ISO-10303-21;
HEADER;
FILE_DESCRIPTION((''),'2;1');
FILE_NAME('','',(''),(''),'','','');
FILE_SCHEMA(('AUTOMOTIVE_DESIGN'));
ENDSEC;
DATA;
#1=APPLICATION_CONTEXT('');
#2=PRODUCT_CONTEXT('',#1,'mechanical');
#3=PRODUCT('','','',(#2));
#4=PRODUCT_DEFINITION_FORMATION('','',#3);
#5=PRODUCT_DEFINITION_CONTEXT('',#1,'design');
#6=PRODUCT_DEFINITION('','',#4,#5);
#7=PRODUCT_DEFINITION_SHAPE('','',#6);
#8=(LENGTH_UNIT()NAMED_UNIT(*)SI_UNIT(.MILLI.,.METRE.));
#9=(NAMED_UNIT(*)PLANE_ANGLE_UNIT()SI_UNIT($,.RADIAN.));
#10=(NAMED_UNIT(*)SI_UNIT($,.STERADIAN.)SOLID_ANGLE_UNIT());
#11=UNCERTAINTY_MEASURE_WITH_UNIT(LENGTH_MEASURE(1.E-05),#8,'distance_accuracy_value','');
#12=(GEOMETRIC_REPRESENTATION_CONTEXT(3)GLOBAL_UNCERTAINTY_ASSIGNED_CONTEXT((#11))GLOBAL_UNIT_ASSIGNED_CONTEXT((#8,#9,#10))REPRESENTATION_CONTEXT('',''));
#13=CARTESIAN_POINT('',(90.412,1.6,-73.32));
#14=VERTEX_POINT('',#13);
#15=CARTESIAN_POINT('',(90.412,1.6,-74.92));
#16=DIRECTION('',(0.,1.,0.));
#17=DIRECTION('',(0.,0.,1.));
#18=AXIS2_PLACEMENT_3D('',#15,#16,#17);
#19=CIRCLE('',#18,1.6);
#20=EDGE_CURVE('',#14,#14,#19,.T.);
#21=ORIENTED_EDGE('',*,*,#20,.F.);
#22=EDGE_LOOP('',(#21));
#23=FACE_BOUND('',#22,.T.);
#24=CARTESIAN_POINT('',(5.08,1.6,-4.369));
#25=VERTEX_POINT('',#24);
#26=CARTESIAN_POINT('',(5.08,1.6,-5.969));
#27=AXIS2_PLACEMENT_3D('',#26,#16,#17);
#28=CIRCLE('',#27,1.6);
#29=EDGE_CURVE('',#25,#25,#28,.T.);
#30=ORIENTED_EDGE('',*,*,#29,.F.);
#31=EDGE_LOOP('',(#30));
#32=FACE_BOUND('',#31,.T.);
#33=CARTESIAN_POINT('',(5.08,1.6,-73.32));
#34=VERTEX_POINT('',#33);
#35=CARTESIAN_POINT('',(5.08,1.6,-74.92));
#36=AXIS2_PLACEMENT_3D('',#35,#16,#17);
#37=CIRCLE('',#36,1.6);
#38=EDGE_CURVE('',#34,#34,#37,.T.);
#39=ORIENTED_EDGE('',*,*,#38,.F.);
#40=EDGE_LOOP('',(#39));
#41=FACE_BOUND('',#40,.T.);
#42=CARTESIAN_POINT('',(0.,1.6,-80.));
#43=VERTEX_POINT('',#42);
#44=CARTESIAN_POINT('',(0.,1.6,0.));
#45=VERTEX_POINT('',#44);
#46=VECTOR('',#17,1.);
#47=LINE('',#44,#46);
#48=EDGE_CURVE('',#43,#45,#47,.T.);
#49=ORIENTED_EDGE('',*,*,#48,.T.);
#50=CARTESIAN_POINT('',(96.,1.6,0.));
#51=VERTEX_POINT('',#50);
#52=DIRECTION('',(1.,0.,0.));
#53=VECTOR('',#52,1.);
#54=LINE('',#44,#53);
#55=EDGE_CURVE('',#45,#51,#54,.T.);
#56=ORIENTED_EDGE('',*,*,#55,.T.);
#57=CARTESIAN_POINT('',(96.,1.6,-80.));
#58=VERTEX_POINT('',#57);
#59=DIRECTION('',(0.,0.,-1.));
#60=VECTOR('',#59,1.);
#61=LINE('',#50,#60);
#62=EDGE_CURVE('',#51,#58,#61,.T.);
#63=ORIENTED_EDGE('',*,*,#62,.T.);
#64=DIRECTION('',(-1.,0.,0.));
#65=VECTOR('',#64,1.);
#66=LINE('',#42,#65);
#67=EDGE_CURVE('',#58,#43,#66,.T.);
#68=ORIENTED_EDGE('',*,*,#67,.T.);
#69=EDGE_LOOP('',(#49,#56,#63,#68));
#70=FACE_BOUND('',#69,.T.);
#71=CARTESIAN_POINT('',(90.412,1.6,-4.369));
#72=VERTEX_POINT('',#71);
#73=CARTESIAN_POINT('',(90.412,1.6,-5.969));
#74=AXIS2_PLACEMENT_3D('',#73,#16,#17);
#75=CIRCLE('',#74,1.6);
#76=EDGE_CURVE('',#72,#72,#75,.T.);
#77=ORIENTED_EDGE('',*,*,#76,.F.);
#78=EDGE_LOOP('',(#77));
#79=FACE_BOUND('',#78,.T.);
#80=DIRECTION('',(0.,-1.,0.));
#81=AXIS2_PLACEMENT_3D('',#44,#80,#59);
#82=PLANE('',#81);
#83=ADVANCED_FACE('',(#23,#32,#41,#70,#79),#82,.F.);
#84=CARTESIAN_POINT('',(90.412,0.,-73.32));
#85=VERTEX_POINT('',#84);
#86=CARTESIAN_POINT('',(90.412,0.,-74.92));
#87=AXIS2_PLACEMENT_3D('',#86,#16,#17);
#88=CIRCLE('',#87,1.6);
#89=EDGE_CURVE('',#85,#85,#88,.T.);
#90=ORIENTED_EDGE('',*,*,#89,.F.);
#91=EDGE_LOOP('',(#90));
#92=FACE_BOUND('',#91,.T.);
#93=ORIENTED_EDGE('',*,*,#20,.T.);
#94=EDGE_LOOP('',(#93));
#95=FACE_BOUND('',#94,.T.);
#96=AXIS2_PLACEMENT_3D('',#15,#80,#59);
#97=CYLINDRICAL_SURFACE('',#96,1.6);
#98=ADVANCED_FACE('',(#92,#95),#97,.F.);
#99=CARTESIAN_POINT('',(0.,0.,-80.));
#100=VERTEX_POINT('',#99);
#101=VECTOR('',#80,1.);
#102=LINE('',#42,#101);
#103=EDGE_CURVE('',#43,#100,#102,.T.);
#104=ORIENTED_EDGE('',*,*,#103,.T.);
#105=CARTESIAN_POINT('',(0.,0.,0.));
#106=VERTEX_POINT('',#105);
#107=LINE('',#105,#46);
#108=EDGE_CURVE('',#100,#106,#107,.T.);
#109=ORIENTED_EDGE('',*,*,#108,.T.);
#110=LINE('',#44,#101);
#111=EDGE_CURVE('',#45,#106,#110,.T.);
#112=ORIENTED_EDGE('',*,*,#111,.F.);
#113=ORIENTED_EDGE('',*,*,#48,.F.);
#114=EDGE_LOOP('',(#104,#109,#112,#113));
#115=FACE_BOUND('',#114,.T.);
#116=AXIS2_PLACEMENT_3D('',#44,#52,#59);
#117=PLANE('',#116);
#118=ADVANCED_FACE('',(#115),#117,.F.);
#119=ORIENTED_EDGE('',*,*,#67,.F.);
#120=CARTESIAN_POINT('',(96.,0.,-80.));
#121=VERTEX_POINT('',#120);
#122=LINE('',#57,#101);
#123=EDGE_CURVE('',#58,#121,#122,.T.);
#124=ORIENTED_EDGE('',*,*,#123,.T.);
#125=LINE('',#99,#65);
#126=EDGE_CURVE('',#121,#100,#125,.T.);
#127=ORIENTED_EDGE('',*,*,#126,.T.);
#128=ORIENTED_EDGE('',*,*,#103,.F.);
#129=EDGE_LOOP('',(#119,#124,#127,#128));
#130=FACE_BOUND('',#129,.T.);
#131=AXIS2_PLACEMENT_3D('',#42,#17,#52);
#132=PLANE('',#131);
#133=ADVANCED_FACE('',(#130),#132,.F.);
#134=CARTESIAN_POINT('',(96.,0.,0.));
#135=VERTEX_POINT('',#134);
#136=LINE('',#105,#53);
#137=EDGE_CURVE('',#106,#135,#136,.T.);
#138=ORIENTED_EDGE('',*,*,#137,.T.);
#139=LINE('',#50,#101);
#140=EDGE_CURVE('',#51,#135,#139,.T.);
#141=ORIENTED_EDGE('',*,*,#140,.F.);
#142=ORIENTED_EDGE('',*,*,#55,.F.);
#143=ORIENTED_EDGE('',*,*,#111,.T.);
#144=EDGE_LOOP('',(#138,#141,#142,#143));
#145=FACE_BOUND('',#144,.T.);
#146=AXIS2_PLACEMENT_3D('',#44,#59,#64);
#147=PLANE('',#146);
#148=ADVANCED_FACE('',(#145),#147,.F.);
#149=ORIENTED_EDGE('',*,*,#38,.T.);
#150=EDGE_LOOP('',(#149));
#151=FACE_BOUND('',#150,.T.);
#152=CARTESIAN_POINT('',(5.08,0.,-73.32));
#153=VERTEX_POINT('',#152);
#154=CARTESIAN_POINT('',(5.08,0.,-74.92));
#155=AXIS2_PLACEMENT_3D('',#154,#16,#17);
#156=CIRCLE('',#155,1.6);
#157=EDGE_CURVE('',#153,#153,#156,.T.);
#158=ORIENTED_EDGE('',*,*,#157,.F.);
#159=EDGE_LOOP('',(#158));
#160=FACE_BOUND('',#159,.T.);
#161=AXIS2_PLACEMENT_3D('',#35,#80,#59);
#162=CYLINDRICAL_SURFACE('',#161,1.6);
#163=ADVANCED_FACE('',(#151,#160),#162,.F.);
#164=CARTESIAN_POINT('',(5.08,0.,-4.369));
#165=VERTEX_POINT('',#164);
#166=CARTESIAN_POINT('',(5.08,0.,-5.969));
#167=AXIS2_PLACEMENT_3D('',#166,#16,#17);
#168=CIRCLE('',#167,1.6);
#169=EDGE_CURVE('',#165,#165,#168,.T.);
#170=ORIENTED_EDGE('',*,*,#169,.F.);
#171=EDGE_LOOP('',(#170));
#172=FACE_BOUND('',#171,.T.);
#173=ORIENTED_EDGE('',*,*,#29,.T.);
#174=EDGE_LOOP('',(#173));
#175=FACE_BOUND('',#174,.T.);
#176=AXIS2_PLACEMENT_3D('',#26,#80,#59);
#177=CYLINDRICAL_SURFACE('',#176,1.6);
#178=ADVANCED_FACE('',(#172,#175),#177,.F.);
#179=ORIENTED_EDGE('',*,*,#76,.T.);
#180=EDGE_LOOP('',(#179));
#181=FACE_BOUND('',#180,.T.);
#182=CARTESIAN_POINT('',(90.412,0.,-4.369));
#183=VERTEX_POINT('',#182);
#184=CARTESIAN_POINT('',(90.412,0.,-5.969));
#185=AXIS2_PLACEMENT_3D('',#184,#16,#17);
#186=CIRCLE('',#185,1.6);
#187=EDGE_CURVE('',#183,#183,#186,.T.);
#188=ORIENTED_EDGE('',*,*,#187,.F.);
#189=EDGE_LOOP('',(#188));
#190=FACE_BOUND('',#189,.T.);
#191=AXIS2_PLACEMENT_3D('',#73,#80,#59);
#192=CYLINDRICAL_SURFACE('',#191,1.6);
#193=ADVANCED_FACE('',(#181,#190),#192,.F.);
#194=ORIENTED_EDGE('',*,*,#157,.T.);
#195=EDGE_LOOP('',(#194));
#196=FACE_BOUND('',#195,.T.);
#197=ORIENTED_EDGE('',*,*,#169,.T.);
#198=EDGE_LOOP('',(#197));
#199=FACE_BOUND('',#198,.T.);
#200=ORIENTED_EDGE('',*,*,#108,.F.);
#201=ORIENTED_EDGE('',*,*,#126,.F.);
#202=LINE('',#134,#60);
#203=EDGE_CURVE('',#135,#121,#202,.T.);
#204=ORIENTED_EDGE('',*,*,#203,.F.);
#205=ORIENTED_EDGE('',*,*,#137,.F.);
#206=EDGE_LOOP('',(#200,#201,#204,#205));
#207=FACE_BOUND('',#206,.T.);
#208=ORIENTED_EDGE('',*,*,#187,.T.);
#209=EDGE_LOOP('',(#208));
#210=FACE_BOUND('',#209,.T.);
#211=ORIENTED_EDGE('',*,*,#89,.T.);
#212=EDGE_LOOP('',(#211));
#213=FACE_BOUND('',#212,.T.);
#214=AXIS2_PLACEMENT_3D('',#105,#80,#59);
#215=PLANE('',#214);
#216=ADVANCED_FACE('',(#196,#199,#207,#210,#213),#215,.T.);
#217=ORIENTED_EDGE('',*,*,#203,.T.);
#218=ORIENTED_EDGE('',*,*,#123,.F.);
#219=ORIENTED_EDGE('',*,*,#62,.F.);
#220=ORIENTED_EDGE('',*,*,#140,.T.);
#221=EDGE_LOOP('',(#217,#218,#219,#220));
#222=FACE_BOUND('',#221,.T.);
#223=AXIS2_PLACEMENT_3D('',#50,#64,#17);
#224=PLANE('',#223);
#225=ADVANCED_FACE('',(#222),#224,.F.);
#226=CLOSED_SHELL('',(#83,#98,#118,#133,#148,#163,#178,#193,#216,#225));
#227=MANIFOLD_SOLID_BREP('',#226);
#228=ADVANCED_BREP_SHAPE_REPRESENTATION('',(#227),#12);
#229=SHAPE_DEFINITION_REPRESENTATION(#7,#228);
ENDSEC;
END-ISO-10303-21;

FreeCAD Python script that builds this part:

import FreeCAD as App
import Part
import Sketcher
Q = App.Units.Quantity


def add_polygon(sketch, points):
    """Adds a closed chain of lines whose ends are joined by coincident constraints."""
    first, n = sketch.GeometryCount, len(points)
    for a, b in zip(points, points[1:] + points[:1]):
        sketch.addGeometry(Part.LineSegment(App.Vector(*a, 0), App.Vector(*b, 0)), False)
    for i in range(n):
        sketch.addConstraint(Sketcher.Constraint("Coincident", first + i, 2, first + (i + 1) % n, 1))

doc = App.newDocument("Part")
params = doc.addObject("Spreadsheet::Sheet", "Params")
for row, (alias, value) in enumerate([
    ("sketch1_diameter", "3.2 mm"),
    ("sketch1_width", "96 mm"),
    ("sketch1_height", "80 mm"),
    ("pad1_length", "1.6 mm"),
], start=1):
    params.set(f"A{row}", alias)
    params.set(f"B{row}", "=" + value)
    params.setAlias(f"B{row}", alias)

body = doc.addObject("PartDesign::Body", "Body")

sketch1 = body.newObject("Sketcher::SketchObject", "Sketch")
sketch1.AttachmentSupport = (doc.getObject("XZ_Plane"), [""])
sketch1.MapMode = "FlatFace"
add_polygon(sketch1, [(0, -80), (0, 0), (96, 0), (96, -80)])
sketch1.addGeometry(Part.Circle(App.Vector(5.1, -6, 0), App.Vector(0, 0, 1), 1.6), False)
sketch1.addGeometry(Part.Circle(App.Vector(90.4, -6, 0), App.Vector(0, 0, 1), 1.6), False)
sketch1.addGeometry(Part.Circle(App.Vector(5.1, -74.9, 0), App.Vector(0, 0, 1), 1.6), False)
sketch1.addGeometry(Part.Circle(App.Vector(90.4, -74.9, 0), App.Vector(0, 0, 1), 1.6), False)
sketch1.addConstraint(Sketcher.Constraint("Vertical", 0))
sketch1.addConstraint(Sketcher.Constraint("Horizontal", 1))
sketch1.addConstraint(Sketcher.Constraint("Vertical", 2))
sketch1.addConstraint(Sketcher.Constraint("Horizontal", 3))
sketch1.addConstraint(Sketcher.Constraint("Coincident", 0, 2, -1, 1))
sketch1.addConstraint(Sketcher.Constraint("Equal", 4, 5))
sketch1.addConstraint(Sketcher.Constraint("Equal", 5, 6))
sketch1.addConstraint(Sketcher.Constraint("Equal", 6, 7))
sketch1.addConstraint(Sketcher.Constraint("Horizontal", 4, 3, 5, 3))
sketch1.addConstraint(Sketcher.Constraint("Horizontal", 6, 3, 7, 3))
sketch1.addConstraint(Sketcher.Constraint("Vertical", 4, 3, 6, 3))
sketch1.addConstraint(Sketcher.Constraint("Vertical", 5, 3, 7, 3))
sketch1.addConstraint(Sketcher.Constraint("Diameter", 4, Q("3.2 mm")))
sketch1.addConstraint(Sketcher.Constraint("DistanceX", 1, 1, 1, 2, Q("96 mm")))
sketch1.addConstraint(Sketcher.Constraint("DistanceY", 0, 1, 0, 2, Q("80 mm")))
sketch1.addConstraint(Sketcher.Constraint("DistanceX", -1, 1, 4, 3, Q("5.08 mm")))
sketch1.addConstraint(Sketcher.Constraint("DistanceY", 6, 3, -1, 1, Q("74.92 mm")))
sketch1.addConstraint(Sketcher.Constraint("DistanceY", 4, 3, -1, 1, Q("5.969 mm")))
sketch1.addConstraint(Sketcher.Constraint("DistanceX", -1, 1, 5, 3, Q("90.412 mm")))
sketch1.setExpression("Constraints[16]", "Params.sketch1_diameter")
sketch1.setExpression("Constraints[17]", "Params.sketch1_width")
sketch1.setExpression("Constraints[18]", "Params.sketch1_height")
pad1 = body.newObject("PartDesign::Pad", "Pad")
pad1.Profile = sketch1
pad1.setExpression("Length", "Params.pad1_length")
pad1.Reversed = True

doc.recompute()
